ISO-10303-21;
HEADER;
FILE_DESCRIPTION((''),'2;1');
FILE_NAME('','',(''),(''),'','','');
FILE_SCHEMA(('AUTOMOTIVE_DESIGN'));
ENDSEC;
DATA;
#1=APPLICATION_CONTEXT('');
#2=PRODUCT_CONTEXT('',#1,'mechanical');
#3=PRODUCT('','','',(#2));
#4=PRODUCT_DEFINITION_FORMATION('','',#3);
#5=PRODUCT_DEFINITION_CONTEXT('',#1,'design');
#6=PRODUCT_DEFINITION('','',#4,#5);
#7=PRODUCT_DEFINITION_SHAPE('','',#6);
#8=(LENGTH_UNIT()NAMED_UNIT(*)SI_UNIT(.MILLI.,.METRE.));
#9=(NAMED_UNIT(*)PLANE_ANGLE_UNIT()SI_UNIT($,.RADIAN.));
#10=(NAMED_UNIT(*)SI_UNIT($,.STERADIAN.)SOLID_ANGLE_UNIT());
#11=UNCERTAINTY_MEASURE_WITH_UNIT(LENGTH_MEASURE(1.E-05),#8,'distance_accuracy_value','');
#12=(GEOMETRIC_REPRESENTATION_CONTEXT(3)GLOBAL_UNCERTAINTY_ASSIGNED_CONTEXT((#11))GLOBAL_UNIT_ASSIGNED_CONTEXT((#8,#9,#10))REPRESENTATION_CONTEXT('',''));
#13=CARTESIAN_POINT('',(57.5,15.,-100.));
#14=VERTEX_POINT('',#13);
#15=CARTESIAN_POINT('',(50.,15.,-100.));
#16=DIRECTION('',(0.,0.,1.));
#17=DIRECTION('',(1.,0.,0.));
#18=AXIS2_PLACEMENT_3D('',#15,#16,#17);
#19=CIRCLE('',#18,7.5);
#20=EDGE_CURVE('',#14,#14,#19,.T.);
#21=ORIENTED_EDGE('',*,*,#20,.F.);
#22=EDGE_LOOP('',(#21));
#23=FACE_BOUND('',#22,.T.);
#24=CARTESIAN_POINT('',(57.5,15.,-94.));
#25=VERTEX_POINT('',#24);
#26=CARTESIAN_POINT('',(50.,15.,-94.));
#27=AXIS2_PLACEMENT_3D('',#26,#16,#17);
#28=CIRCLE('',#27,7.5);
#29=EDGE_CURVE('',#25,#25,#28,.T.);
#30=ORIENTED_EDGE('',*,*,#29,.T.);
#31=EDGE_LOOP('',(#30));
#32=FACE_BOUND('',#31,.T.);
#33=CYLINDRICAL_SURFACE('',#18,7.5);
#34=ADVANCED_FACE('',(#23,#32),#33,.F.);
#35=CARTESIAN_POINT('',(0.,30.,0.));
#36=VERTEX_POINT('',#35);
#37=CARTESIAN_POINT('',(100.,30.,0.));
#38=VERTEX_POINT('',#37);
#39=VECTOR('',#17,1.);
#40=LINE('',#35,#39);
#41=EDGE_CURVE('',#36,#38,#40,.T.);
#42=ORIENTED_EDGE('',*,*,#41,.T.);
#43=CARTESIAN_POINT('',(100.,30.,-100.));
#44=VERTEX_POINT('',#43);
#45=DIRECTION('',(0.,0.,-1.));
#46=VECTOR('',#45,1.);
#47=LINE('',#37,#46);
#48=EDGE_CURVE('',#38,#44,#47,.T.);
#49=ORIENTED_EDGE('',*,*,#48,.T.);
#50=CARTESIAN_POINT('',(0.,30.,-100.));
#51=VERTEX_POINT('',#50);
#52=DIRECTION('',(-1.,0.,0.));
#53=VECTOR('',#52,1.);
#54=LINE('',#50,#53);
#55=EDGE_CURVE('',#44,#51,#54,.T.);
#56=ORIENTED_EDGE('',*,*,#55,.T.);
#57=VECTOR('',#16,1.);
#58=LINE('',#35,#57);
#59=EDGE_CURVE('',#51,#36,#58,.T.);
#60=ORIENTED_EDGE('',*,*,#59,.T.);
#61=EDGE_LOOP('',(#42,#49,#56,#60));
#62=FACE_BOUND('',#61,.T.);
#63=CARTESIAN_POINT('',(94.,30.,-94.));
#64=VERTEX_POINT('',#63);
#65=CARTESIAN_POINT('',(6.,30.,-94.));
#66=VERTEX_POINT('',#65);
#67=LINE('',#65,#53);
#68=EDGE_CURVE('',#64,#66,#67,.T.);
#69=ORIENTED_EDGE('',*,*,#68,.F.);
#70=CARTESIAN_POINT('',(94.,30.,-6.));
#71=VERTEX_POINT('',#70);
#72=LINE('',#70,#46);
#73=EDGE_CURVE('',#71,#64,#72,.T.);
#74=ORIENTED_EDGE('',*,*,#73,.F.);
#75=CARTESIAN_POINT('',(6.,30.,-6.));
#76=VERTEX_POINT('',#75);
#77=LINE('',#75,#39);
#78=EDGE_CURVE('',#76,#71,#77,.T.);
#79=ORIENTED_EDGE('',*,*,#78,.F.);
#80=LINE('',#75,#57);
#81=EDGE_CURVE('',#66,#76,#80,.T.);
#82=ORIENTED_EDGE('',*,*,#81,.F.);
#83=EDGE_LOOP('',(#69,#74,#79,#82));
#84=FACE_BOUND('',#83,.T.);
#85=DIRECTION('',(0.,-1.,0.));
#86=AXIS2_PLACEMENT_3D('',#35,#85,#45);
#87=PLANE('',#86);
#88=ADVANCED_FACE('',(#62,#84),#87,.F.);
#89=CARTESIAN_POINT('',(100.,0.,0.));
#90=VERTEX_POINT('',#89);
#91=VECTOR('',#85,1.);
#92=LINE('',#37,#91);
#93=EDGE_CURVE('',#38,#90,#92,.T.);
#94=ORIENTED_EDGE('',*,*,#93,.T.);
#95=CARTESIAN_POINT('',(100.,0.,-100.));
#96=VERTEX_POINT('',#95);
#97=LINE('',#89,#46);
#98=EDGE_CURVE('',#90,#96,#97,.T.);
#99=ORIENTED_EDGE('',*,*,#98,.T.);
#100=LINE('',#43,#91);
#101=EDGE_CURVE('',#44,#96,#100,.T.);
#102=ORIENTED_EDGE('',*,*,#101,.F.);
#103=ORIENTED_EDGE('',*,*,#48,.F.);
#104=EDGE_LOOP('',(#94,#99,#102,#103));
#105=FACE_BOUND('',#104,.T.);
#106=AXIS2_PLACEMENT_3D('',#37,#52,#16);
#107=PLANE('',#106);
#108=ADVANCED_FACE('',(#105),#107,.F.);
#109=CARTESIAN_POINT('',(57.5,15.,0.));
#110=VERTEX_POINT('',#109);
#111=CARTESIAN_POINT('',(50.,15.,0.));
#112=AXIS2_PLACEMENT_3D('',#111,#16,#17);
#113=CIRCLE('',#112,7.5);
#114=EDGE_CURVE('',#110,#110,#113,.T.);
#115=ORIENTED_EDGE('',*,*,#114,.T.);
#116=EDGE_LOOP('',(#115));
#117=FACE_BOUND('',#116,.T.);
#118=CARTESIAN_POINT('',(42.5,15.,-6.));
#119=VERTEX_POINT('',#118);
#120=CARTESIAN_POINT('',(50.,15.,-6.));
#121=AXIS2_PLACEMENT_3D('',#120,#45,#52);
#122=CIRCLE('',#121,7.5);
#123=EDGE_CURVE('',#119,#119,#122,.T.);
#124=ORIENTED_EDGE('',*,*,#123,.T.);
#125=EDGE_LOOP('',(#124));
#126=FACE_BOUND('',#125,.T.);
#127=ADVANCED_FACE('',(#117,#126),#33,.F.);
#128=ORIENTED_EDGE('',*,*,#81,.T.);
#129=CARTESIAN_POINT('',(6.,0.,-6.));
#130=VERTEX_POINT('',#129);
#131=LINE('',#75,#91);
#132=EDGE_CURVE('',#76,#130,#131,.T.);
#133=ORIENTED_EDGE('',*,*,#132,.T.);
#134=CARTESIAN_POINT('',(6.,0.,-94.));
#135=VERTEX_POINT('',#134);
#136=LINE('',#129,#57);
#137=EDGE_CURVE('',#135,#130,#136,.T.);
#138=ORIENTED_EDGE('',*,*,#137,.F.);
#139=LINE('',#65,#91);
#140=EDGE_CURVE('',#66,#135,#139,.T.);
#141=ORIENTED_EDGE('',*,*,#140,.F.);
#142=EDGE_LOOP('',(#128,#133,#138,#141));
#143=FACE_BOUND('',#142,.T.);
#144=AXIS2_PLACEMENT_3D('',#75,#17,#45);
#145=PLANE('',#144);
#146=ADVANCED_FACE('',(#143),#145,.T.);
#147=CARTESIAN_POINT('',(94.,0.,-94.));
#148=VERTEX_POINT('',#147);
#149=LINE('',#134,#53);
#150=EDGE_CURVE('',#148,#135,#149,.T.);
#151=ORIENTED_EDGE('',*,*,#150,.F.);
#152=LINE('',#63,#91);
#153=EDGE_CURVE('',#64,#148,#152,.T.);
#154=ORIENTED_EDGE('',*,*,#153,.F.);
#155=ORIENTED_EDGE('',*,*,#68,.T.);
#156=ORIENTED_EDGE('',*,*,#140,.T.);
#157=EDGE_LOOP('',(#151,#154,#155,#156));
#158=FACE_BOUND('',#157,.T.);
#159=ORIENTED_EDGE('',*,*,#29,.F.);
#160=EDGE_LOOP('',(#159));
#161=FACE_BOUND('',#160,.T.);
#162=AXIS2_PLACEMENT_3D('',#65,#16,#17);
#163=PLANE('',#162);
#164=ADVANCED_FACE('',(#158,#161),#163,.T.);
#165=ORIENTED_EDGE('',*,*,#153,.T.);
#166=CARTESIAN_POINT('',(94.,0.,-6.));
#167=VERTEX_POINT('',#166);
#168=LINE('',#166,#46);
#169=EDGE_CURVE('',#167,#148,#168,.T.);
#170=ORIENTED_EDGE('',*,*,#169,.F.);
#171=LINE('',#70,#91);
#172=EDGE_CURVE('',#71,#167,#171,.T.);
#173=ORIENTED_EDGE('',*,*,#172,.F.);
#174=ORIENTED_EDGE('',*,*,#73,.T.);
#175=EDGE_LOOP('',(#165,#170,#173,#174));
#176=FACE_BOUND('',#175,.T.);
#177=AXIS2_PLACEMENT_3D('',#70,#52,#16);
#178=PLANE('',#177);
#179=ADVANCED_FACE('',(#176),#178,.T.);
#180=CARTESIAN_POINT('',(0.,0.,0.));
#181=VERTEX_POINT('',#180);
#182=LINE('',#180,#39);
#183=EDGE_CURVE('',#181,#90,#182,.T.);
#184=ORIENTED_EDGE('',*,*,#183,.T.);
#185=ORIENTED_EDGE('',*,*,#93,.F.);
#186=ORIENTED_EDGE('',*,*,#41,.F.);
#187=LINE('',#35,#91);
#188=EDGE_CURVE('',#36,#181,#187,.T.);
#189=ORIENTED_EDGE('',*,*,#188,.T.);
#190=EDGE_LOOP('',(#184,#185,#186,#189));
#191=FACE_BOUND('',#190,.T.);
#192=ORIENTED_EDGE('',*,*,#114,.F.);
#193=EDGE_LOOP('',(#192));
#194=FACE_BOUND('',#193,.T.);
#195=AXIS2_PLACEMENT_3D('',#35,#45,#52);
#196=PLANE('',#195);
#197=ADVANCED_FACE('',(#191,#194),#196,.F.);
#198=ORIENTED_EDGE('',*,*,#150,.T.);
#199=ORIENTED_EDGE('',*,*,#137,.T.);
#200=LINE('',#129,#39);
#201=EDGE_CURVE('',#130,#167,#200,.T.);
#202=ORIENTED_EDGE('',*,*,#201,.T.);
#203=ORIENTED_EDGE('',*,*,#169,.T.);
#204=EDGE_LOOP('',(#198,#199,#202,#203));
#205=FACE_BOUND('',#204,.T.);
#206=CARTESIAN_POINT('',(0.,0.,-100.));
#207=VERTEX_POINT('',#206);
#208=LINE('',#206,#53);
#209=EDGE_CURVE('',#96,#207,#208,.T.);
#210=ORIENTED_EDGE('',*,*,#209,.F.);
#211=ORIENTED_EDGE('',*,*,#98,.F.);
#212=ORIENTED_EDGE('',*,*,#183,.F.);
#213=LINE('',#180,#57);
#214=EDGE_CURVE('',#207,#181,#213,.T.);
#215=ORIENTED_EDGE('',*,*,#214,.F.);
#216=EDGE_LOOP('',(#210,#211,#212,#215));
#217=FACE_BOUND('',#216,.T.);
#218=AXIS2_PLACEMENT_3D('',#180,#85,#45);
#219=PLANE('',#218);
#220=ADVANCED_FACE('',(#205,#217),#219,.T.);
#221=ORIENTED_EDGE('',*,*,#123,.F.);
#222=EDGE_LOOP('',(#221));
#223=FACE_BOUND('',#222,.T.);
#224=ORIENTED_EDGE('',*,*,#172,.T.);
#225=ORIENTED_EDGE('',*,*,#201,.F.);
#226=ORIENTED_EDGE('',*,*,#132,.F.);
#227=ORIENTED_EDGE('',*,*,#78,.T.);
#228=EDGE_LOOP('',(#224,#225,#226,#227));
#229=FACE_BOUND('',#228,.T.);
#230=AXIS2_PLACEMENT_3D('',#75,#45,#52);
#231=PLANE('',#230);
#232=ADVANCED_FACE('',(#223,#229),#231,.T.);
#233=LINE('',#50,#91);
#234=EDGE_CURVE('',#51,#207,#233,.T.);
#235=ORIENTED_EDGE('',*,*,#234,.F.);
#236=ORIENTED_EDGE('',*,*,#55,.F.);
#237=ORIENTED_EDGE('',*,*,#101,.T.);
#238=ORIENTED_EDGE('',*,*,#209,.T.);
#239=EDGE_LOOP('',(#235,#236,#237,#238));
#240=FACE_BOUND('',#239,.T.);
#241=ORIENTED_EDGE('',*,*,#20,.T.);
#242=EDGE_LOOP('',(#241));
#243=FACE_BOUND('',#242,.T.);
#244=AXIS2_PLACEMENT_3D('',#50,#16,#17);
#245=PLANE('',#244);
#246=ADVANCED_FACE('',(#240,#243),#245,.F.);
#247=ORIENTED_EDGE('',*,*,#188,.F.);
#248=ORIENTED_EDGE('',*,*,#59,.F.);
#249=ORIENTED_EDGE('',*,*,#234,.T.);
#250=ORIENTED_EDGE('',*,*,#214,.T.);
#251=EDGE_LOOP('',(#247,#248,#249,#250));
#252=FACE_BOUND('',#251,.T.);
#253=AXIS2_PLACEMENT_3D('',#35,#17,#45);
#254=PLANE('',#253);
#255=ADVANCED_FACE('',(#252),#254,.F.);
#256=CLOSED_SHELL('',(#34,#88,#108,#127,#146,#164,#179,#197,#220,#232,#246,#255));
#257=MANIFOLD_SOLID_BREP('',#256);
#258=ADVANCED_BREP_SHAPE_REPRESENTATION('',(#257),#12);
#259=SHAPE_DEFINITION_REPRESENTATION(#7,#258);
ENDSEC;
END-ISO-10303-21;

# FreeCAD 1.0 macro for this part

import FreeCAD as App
import Part
import Sketcher
Q = App.Units.Quantity


def add_polygon(sketch, points):
    """Adds a closed chain of lines whose ends are joined by coincident constraints."""
    first, n = sketch.GeometryCount, len(points)
    for a, b in zip(points, points[1:] + points[:1]):
        sketch.addGeometry(Part.LineSegment(App.Vector(*a, 0), App.Vector(*b, 0)), False)
    for i in range(n):
        sketch.addConstraint(Sketcher.Constraint("Coincident", first + i, 2, first + (i + 1) % n, 1))

doc = App.newDocument("Part")
params = doc.addObject("Spreadsheet::Sheet", "Params")
for row, (alias, value) in enumerate([
    ("sketch1_width", "100 mm"),
    ("sketch1_width2", "88 mm"),
    ("pad1_length", "30 mm"),
    ("sketch2_diameter", "15 mm"),
], start=1):
    params.set(f"A{row}", alias)
    params.set(f"B{row}", "=" + value)
    params.setAlias(f"B{row}", alias)

body = doc.addObject("PartDesign::Body", "Body")

# Sketch on XZ plane
sketch1 = doc.addObject("Sketcher::SketchObject", "Sketch")
body.addObject(sketch1)
sketch1.AttachmentSupport = (doc.XZ_Plane, [""])
sketch1.MapMode = "FlatFace"
add_polygon(sketch1, [(0, -100), (0, 0), (100, 0), (100, -100)])  # lines 0-3
add_polygon(sketch1, [(94, -6), (6, -6), (6, -94), (94, -94)])  # lines 4-7
sketch1.addConstraint([
    Sketcher.Constraint("Vertical", 0),
    Sketcher.Constraint("Horizontal", 1),
    Sketcher.Constraint("Vertical", 2),
    Sketcher.Constraint("Horizontal", 3),
    Sketcher.Constraint("Horizontal", 4),
    Sketcher.Constraint("Vertical", 5),
    Sketcher.Constraint("Horizontal", 6),
    Sketcher.Constraint("Vertical", 7),
    Sketcher.Constraint("Coincident", 0, 2, -1, 1),
    Sketcher.Constraint("Equal", 3, 0),
    Sketcher.Constraint("Equal", 6, 5),
    Sketcher.Constraint("DistanceX", 1, 1, 1, 2, Q("100 mm")),
    Sketcher.Constraint("DistanceX", 4, 2, 4, 1, Q("88 mm")),
    Sketcher.Constraint("DistanceX", -1, 1, 4, 2, Q("6 mm")),
    Sketcher.Constraint("DistanceY", 4, 2, -1, 1, Q("6 mm")),
])
sketch1.setExpression("Constraints[19]", "Params.sketch1_width")
sketch1.setExpression("Constraints[20]", "Params.sketch1_width2")
pad1 = doc.addObject("PartDesign::Pad", "Pad")
body.addObject(pad1)
pad1.Profile = sketch1
pad1.setExpression("Length", "Params.pad1_length")
pad1.Reversed = True

# Sketch on XY plane
sketch2 = doc.addObject("Sketcher::SketchObject", "Sketch001")
body.addObject(sketch2)
sketch2.AttachmentSupport = (doc.XY_Plane, [""])
sketch2.MapMode = "FlatFace"
sketch2.addGeometry(Part.Circle(App.Vector(50, 15, 0), App.Vector(0, 0, 1), 8), False)
sketch2.addConstraint([
    Sketcher.Constraint("Diameter", 0, Q("15 mm")),
    Sketcher.Constraint("DistanceX", -1, 1, 0, 3, Q("50 mm")),
    Sketcher.Constraint("DistanceY", -1, 1, 0, 3, Q("15 mm")),
])
sketch2.setExpression("Constraints[0]", "Params.sketch2_diameter")
pocket1 = doc.addObject("PartDesign::Pocket", "Pocket")
body.addObject(pocket1)
pocket1.Profile = sketch2
pocket1.Type = "ThroughAll"

doc.recompute()
